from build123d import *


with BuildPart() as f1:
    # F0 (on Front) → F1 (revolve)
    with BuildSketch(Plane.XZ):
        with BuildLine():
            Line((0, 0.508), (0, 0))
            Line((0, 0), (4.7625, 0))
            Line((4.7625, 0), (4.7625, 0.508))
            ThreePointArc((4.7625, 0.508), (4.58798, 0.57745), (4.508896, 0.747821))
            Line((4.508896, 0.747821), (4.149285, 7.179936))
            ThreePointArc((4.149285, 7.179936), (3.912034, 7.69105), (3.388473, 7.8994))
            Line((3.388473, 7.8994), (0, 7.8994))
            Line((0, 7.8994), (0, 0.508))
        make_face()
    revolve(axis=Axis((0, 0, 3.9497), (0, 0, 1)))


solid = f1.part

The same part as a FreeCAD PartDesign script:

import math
import FreeCAD as App
import Part
import Sketcher
Q = App.Units.Quantity

doc = App.newDocument("Part")
body = doc.addObject("PartDesign::Body", "Body")

sketch1 = body.newObject("Sketcher::SketchObject", "Sketch")
sketch1.AttachmentSupport = (doc.getObject("XZ_Plane"), [""])
sketch1.MapMode = "FlatFace"
sketch1.addGeometry(Part.LineSegment(App.Vector(0, 0, 0), App.Vector(4.76, 0, 0)), False)
sketch1.addGeometry(Part.LineSegment(App.Vector(4.76, 0, 0), App.Vector(4.76, 0.51, 0)), False)
sketch1.addGeometry(Part.ArcOfCircle(Part.Circle(App.Vector(4.76, 0.76, 0), App.Vector(0, 0, 1), 0.25), math.radians(-177), math.radians(-90)), False)
sketch1.addGeometry(Part.LineSegment(App.Vector(4.51, 0.75, 0), App.Vector(4.15, 7.18, 0)), False)
sketch1.addGeometry(Part.ArcOfCircle(Part.Circle(App.Vector(3.39, 7.14, 0), App.Vector(0, 0, 1), 0.76), math.radians(3), math.radians(90)), False)
sketch1.addGeometry(Part.LineSegment(App.Vector(3.39, 7.9, 0), App.Vector(0, 7.9, 0)), False)
sketch1.addGeometry(Part.LineSegment(App.Vector(0, 7.9, 0), App.Vector(0, 0, 0)), False)
sketch1.addConstraint(Sketcher.Constraint("Coincident", 0, 2, 1, 1))
sketch1.addConstraint(Sketcher.Constraint("Coincident", 1, 2, 2, 2))
sketch1.addConstraint(Sketcher.Constraint("Coincident", 2, 1, 3, 1))
sketch1.addConstraint(Sketcher.Constraint("Tangent", 3, 2, 4, 1))
sketch1.addConstraint(Sketcher.Constraint("Tangent", 4, 2, 5, 1))
sketch1.addConstraint(Sketcher.Constraint("Coincident", 5, 2, 6, 1))
sketch1.addConstraint(Sketcher.Constraint("Coincident", 6, 2, 0, 1))
sketch1.addConstraint(Sketcher.Constraint("Horizontal", 0))
sketch1.addConstraint(Sketcher.Constraint("Vertical", 1))
sketch1.addConstraint(Sketcher.Constraint("Horizontal", 5))
sketch1.addConstraint(Sketcher.Constraint("Vertical", 6))
sketch1.addConstraint(Sketcher.Constraint("Coincident", 6, 2, -1, 1))
sketch1.addConstraint(Sketcher.Constraint("Vertical", 2, 3, 0, 2))
sketch1.addConstraint(Sketcher.Constraint("Radius", 2, Q("0.01 in")))
sketch1.addConstraint(Sketcher.Constraint("Radius", 4, Q("0.03 in")))
sketch1.addConstraint(Sketcher.Constraint("DistanceY", 1, 1, 1, 2, Q("0.02 in")))
sketch1.addConstraint(Sketcher.Constraint("Angle", 3, Q("93.199999 deg")))
sketch1.addConstraint(Sketcher.Constraint("DistanceX", 0, 1, 0, 2, Q("0.1875 in")))
sketch1.addConstraint(Sketcher.Constraint("DistanceY", 6, 2, 6, 1, Q("0.311 in")))
sketch1.addConstraint(Sketcher.Constraint("Distance", 3, Q("6.44216 mm")))
revolution = body.newObject("PartDesign::Revolution", "Revolution")
revolution.Profile = sketch1
revolution.ReferenceAxis = (sketch1, ["V_Axis"])
revolution.Angle = 360

doc.recompute()
